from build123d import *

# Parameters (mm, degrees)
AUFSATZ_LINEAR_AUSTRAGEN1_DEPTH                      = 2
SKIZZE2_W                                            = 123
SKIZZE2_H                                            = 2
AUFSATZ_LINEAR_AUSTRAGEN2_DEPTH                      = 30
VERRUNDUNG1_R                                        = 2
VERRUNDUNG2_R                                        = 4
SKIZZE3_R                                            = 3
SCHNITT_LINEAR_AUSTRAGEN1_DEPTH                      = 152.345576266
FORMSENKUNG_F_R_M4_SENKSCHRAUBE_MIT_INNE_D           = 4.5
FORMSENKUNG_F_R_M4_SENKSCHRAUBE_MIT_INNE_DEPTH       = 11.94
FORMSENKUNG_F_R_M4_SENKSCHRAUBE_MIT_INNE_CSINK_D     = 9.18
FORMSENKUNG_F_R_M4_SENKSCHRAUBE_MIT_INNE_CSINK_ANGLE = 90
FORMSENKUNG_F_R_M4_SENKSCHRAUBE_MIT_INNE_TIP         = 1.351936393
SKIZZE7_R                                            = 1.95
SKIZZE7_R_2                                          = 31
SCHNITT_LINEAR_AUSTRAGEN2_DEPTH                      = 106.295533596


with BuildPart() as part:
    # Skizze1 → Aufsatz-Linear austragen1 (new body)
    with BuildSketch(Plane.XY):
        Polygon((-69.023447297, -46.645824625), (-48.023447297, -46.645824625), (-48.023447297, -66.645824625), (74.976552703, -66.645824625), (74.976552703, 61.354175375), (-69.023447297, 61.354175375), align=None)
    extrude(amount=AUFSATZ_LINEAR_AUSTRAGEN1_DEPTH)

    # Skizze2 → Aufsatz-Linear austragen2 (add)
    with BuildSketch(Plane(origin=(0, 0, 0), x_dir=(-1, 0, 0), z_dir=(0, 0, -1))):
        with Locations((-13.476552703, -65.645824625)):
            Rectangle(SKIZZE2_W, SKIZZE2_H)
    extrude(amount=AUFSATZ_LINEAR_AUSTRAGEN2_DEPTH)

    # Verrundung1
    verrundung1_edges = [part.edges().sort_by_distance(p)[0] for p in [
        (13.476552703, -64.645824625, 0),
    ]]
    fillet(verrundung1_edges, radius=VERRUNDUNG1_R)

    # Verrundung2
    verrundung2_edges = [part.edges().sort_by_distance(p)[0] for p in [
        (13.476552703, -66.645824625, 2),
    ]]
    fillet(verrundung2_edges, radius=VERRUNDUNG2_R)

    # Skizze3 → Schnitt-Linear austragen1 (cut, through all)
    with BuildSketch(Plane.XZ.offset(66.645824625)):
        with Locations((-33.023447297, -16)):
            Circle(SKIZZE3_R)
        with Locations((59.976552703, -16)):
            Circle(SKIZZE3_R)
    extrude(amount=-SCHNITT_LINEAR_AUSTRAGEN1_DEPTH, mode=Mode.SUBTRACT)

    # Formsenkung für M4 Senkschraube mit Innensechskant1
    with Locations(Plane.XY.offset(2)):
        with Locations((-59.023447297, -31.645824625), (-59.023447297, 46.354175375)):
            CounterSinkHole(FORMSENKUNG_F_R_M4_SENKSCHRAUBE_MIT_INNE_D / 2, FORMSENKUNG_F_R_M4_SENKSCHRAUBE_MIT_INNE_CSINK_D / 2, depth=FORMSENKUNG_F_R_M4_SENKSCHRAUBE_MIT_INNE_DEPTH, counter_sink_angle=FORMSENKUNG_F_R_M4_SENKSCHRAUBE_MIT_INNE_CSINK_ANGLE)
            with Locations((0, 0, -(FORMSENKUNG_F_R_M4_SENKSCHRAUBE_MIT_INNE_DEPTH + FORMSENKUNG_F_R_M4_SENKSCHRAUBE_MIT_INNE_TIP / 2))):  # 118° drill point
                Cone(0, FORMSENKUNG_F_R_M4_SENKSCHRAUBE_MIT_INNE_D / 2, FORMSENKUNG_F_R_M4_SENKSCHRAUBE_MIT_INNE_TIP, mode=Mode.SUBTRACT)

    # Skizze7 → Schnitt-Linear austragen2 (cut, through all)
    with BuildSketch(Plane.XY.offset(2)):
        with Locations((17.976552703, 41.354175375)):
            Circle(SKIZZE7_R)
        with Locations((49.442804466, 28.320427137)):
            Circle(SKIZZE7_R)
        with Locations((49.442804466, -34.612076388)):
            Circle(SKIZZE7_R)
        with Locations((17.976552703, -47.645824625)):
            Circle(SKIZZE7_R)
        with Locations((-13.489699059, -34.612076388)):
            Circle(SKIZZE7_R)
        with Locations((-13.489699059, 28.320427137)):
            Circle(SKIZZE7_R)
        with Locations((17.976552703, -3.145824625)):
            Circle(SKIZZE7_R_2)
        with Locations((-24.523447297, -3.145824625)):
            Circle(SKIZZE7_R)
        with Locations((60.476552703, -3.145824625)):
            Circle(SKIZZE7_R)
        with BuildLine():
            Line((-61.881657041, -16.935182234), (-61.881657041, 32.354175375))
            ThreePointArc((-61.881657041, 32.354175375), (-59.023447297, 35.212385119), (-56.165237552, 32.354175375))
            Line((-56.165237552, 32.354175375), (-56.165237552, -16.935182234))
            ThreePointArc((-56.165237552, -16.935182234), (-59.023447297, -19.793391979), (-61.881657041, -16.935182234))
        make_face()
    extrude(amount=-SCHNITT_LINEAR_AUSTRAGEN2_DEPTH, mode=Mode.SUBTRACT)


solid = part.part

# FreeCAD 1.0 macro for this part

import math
import FreeCAD as App
import Part
import Sketcher


def edges_at(feature, points):
    """Names of the edges that pass closest to the given points."""
    edges = feature.Shape.Edges
    near = lambda p: min(range(len(edges)), key=lambda i: edges[i].distToShape(Part.Vertex(*p))[0])
    return sorted({f"Edge{near(p) + 1}" for p in points})

doc = App.newDocument("Part")
body = doc.addObject("PartDesign::Body", "Body")

# Sketch on XY plane
sketch1 = body.newObject("Sketcher::SketchObject", "Sketch")
sketch1.AttachmentSupport = (doc.getObject("XY_Plane"), [""])
sketch1.MapMode = "FlatFace"
sketch1.addGeometry([
    Part.LineSegment(App.Vector(-69, -47, 0), App.Vector(-48, -47, 0)),  # 0
    Part.LineSegment(App.Vector(-48, -47, 0), App.Vector(-48, -67, 0)),  # 1
    Part.LineSegment(App.Vector(-48, -67, 0), App.Vector(75, -67, 0)),  # 2
    Part.LineSegment(App.Vector(75, -67, 0), App.Vector(75, 61, 0)),  # 3
    Part.LineSegment(App.Vector(75, 61, 0), App.Vector(-69, 61, 0)),  # 4
    Part.LineSegment(App.Vector(-69, 61, 0), App.Vector(-69, -47, 0)),  # 5
], False)
sketch1.addConstraint([
    Sketcher.Constraint("Coincident", 0, 2, 1, 1),
    Sketcher.Constraint("Coincident", 1, 2, 2, 1),
    Sketcher.Constraint("Coincident", 2, 2, 3, 1),
    Sketcher.Constraint("Coincident", 3, 2, 4, 1),
    Sketcher.Constraint("Coincident", 4, 2, 5, 1),
    Sketcher.Constraint("Coincident", 5, 2, 0, 1),
    Sketcher.Constraint("Horizontal", 0),
    Sketcher.Constraint("Vertical", 1),
    Sketcher.Constraint("Horizontal", 2),
    Sketcher.Constraint("Vertical", 3),
    Sketcher.Constraint("Horizontal", 4),
    Sketcher.Constraint("Vertical", 5),
    Sketcher.Constraint("DistanceX", 0, 1, 0, 2, 21.0),
    Sketcher.Constraint("DistanceX", 2, 1, 2, 2, 123.0),
    Sketcher.Constraint("DistanceY", 1, 2, 1, 1, 20.0),
    Sketcher.Constraint("DistanceY", 3, 1, 3, 2, 128.0),
    Sketcher.Constraint("DistanceX", 0, 2, -1, 1, 48.023447),
    Sketcher.Constraint("DistanceY", 0, 2, -1, 1, 46.645825),
])
pad1 = body.newObject("PartDesign::Pad", "Pad")
pad1.Profile = sketch1
pad1.Length = 2

# Sketch on XY plane
sketch2 = body.newObject("Sketcher::SketchObject", "Sketch001")
sketch2.AttachmentSupport = (doc.getObject("XY_Plane"), [""])
sketch2.MapMode = "FlatFace"
sketch2.addGeometry([
    Part.LineSegment(App.Vector(75, -64.6, 0), App.Vector(75, -66.6, 0)),
    Part.LineSegment(App.Vector(75, -66.6, 0), App.Vector(-48, -66.6, 0)),
    Part.LineSegment(App.Vector(-48, -66.6, 0), App.Vector(-48, -64.6, 0)),
    Part.LineSegment(App.Vector(-48, -64.6, 0), App.Vector(75, -64.6, 0)),
], False)
sketch2.addConstraint([
    Sketcher.Constraint("Coincident", 0, 2, 1, 1),
    Sketcher.Constraint("Coincident", 1, 2, 2, 1),
    Sketcher.Constraint("Coincident", 2, 2, 3, 1),
    Sketcher.Constraint("Coincident", 3, 2, 0, 1),
    Sketcher.Constraint("Vertical", 0),
    Sketcher.Constraint("Horizontal", 1),
    Sketcher.Constraint("Vertical", 2),
    Sketcher.Constraint("Horizontal", 3),
    Sketcher.Constraint("DistanceX", 1, 2, 1, 1, 123.0),
    Sketcher.Constraint("DistanceY", 0, 2, 0, 1, 2.0),
    Sketcher.Constraint("DistanceX", -1, 1, 0, 2, 74.976553),
    Sketcher.Constraint("DistanceY", 0, 2, -1, 1, 66.645825),
])
pad2 = body.newObject("PartDesign::Pad", "Pad001")
pad2.Profile = sketch2
pad2.Length = 30
pad2.Reversed = True
doc.recompute()

fillet = body.newObject("PartDesign::Fillet", "Fillet")
fillet.Base = (pad2, edges_at(pad2, [(13.477, -64.646, 0)]))
fillet.Radius = 2
doc.recompute()

fillet2 = body.newObject("PartDesign::Fillet", "Fillet001")
fillet2.Base = (fillet, edges_at(fillet, [(13.477, -66.646, 2)]))
fillet2.Radius = 4

# Sketch on XZ plane
sketch3 = body.newObject("Sketcher::SketchObject", "Sketch002")
sketch3.AttachmentSupport = (doc.getObject("XZ_Plane"), [""])
sketch3.MapMode = "FlatFace"
sketch3.AttachmentOffset = App.Placement(App.Vector(0, 0, 66.645825), App.Rotation())
sketch3.addGeometry([
    Part.Circle(App.Vector(-33, -16, 0), App.Vector(0, 0, 1), 3),
    Part.Circle(App.Vector(60, -16, 0), App.Vector(0, 0, 1), 3),
], False)
sketch3.addConstraint([
    Sketcher.Constraint("Equal", 0, 1),
    Sketcher.Constraint("Horizontal", 0, 3, 1, 3),
    Sketcher.Constraint("Diameter", 0, 6.0),
    Sketcher.Constraint("DistanceY", 0, 3, -1, 1, 16.0),
    Sketcher.Constraint("DistanceX", 0, 3, 1, 3, 93.0),
    Sketcher.Constraint("DistanceX", 0, 3, -1, 1, 33.023447),
])
pocket1 = body.newObject("PartDesign::Pocket", "Pocket")
pocket1.Profile = sketch3
pocket1.Type = "ThroughAll"

# Sketch on XY plane
sketch4 = body.newObject("Sketcher::SketchObject", "Sketch003")
sketch4.AttachmentSupport = (doc.getObject("XY_Plane"), [""])
sketch4.MapMode = "FlatFace"
sketch4.AttachmentOffset = App.Placement(App.Vector(0, 0, 2), App.Rotation())
sketch4.addGeometry([
    Part.Circle(App.Vector(-59, -31.6, 0), App.Vector(0, 0, 1), 2.2),
    Part.Circle(App.Vector(-59, 46.4, 0), App.Vector(0, 0, 1), 2.2),
], False)
sketch4.addConstraint([
    Sketcher.Constraint("Equal", 0, 1),
    Sketcher.Constraint("Vertical", 0, 3, 1, 3),
    Sketcher.Constraint("Diameter", 0, 4.5),
    Sketcher.Constraint("DistanceY", 0, 3, 1, 3, 78.0),
    Sketcher.Constraint("DistanceX", 0, 3, -1, 1, 59.023447),
    Sketcher.Constraint("DistanceY", 0, 3, -1, 1, 31.645825),
])
doc.recompute()
hole = body.newObject("PartDesign::Hole", "Hole")
hole.Profile = sketch4
hole.ThreadType = "None"
hole.Diameter = 4.5
hole.DepthType = "Dimension"
hole.Depth = 11.94
hole.DrillPoint = "Angled"
hole.DrillPointAngle = 118
hole.HoleCutType = "Countersink"
hole.HoleCutDiameter = 9.18
hole.HoleCutCountersinkAngle = 90

# Sketch on XY plane
sketch5 = body.newObject("Sketcher::SketchObject", "Sketch004")
sketch5.AttachmentSupport = (doc.getObject("XY_Plane"), [""])
sketch5.MapMode = "FlatFace"
sketch5.AttachmentOffset = App.Placement(App.Vector(0, 0, 2), App.Rotation())
sketch5.addGeometry([
    Part.Circle(App.Vector(18, 41.4, 0), App.Vector(0, 0, 1), 1.9),  # 0
    Part.Circle(App.Vector(49.4, 28.3, 0), App.Vector(0, 0, 1), 1.9),  # 1
    Part.Circle(App.Vector(49.4, -34.6, 0), App.Vector(0, 0, 1), 1.9),  # 2
    Part.Circle(App.Vector(18, -47.6, 0), App.Vector(0, 0, 1), 1.9),  # 3
    Part.Circle(App.Vector(-13.5, -34.6, 0), App.Vector(0, 0, 1), 1.9),  # 4
    Part.Circle(App.Vector(-13.5, 28.3, 0), App.Vector(0, 0, 1), 1.9),  # 5
    Part.Circle(App.Vector(18, -3.1, 0), App.Vector(0, 0, 1), 31),  # 6
    Part.Circle(App.Vector(-24.5, -3.1, 0), App.Vector(0, 0, 1), 1.9),  # 7
    Part.Circle(App.Vector(60.5, -3.1, 0), App.Vector(0, 0, 1), 1.9),  # 8
    Part.LineSegment(App.Vector(-61.9, 32.4, 0), App.Vector(-61.9, -16.9, 0)),  # 9
    Part.ArcOfCircle(Part.Circle(App.Vector(-59, -16.9, 0), App.Vector(0, 0, 1), 2.9), math.radians(180), math.radians(360)),  # 10
    Part.LineSegment(App.Vector(-56.2, -16.9, 0), App.Vector(-56.2, 32.4, 0)),  # 11
    Part.ArcOfCircle(Part.Circle(App.Vector(-59, 32.4, 0), App.Vector(0, 0, 1), 2.9), math.radians(0), math.radians(180)),  # 12
], False)
sketch5.addConstraint([
    Sketcher.Constraint("Tangent", 9, 2, 10, 1),
    Sketcher.Constraint("Tangent", 10, 2, 11, 1),
    Sketcher.Constraint("Tangent", 11, 2, 12, 1),
    Sketcher.Constraint("Tangent", 12, 2, 9, 1),
    Sketcher.Constraint("Vertical", 9),
    Sketcher.Constraint("Vertical", 11),
    Sketcher.Constraint("Equal", 0, 1),
    Sketcher.Constraint("Equal", 1, 2),
    Sketcher.Constraint("Equal", 2, 3),
    Sketcher.Constraint("Equal", 3, 4),
    Sketcher.Constraint("Equal", 4, 5),
    Sketcher.Constraint("Equal", 5, 7),
    Sketcher.Constraint("Equal", 7, 8),
    Sketcher.Constraint("Horizontal", 2, 3, 4, 3),
    Sketcher.Constraint("Horizontal", 1, 3, 5, 3),
    Sketcher.Constraint("Horizontal", 6, 3, 7, 3),
    Sketcher.Constraint("Horizontal", 7, 3, 8, 3),
    Sketcher.Constraint("Vertical", 1, 3, 2, 3),
    Sketcher.Constraint("Vertical", 0, 3, 3, 3),
    Sketcher.Constraint("Vertical", 4, 3, 5, 3),
    Sketcher.Constraint("Vertical", 3, 3, 6, 3),
    Sketcher.Constraint("Diameter", 6, 62.0),
    Sketcher.Constraint("Diameter", 0, 3.9),
    Sketcher.Constraint("DistanceY", 3, 3, 0, 3, 89.0),
    Sketcher.Constraint("DistanceX", 10, 3, 6, 3, 77.0),
    Sketcher.Constraint("DistanceY", 12, 3, 0, 3, 9.0),
    Sketcher.Constraint("DistanceY", 6, 3, 0, 3, 44.5),
    Sketcher.Constraint("DistanceX", 7, 3, 6, 3, 42.5),
    Sketcher.Constraint("DistanceX", 6, 3, 8, 3, 42.5),
    Sketcher.Constraint("Radius", 10, 2.85821),
    Sketcher.Constraint("DistanceX", 4, 3, -1, 1, 13.489699),
    Sketcher.Constraint("DistanceY", 9, 2, 9, 1, 49.289358),
    Sketcher.Constraint("DistanceX", 0, 3, 1, 3, 31.466252),
    Sketcher.Constraint("DistanceY", 1, 3, 0, 3, 13.033748),
    Sketcher.Constraint("DistanceY", 2, 3, 0, 3, 75.966252),
    Sketcher.Constraint("DistanceX", 4, 3, 3, 3, 31.466252),
    Sketcher.Constraint("DistanceY", -1, 1, 0, 3, 41.354175),
])
pocket2 = body.newObject("PartDesign::Pocket", "Pocket001")
pocket2.Profile = sketch5
pocket2.Type = "ThroughAll"

doc.recompute()
